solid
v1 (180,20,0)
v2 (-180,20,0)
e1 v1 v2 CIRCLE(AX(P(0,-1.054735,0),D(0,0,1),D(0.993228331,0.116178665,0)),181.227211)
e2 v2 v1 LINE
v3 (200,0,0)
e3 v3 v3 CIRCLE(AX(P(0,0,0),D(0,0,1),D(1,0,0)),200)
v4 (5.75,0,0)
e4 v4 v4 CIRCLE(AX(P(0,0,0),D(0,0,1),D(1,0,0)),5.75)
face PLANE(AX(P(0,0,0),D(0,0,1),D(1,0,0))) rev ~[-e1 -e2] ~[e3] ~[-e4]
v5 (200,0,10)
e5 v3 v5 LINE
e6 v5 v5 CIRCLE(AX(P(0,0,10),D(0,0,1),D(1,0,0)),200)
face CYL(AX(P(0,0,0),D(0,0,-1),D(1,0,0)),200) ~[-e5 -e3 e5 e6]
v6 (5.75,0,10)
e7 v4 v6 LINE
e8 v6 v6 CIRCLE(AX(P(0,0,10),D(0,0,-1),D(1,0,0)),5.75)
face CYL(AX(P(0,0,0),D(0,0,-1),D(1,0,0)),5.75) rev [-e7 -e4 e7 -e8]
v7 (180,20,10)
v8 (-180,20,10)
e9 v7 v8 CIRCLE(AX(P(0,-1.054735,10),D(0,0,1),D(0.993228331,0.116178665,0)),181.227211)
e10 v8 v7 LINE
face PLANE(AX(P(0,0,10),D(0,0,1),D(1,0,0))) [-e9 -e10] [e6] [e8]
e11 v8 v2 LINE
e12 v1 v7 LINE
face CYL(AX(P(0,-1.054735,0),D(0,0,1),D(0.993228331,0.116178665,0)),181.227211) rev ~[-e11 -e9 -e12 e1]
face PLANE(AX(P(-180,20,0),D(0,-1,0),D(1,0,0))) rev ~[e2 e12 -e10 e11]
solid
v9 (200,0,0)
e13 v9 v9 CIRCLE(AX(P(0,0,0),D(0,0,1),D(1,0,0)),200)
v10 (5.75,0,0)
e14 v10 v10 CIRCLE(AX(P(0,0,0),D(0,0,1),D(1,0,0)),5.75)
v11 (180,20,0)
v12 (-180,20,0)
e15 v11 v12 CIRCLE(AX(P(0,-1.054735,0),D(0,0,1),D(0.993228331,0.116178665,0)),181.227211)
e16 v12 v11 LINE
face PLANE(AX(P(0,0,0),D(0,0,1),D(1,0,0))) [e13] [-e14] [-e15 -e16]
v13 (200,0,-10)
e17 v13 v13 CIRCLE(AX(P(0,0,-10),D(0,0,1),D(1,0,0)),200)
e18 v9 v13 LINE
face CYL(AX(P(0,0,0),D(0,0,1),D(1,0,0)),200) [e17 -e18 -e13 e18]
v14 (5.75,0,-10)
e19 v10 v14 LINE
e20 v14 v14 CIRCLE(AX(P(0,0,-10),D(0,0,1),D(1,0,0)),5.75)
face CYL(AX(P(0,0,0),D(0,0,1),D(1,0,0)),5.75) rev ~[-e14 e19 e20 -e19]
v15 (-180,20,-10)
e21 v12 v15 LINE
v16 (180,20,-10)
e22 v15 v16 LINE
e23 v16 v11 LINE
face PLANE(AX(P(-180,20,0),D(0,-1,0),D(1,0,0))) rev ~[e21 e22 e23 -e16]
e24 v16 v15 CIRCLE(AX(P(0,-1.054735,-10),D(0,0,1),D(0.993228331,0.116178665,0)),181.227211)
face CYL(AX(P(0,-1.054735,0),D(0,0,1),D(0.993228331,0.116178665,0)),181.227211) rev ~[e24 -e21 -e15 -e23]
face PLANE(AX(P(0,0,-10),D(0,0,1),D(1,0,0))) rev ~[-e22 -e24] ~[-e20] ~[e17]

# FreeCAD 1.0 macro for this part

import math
import FreeCAD as App
import Part
import Sketcher
from FreeCAD import Vector
Q = App.Units.Quantity

doc = App.newDocument("Part")
body = doc.addObject("PartDesign::Body", "Body")

# Sketch on XY plane
sketch1 = body.newObject("Sketcher::SketchObject", "Sketch")
sketch1.AttachmentSupport = (doc.getObject("XY_Plane"), [""])
sketch1.MapMode = "FlatFace"
sketch1.addGeometry(Part.Circle(Vector(0, 0, 0), Vector(0, 0, 1), 200), False)
sketch1.addConstraint(Sketcher.Constraint("Coincident", 0, 3, -1, 1))
sketch1.addConstraint(Sketcher.Constraint("Diameter", 0, Q("400 mm")))
pad1 = body.newObject("PartDesign::Pad", "Pad")
pad1.Profile = sketch1
pad1.Length = 10
body2 = doc.addObject("PartDesign::Body", "Body001")

# Sketch on XY plane
sketch2 = body2.newObject("Sketcher::SketchObject", "Sketch001")
sketch2.AttachmentSupport = (doc.getObject("XY_Plane001"), [""])
sketch2.MapMode = "FlatFace"
sketch2.addGeometry(Part.Circle(Vector(0, 0, 0), Vector(0, 0, 1), 200), False)
sketch2.addConstraint(Sketcher.Constraint("Coincident", 0, 3, -1, 1))
sketch2.addConstraint(Sketcher.Constraint("Diameter", 0, Q("400 mm")))
pad2 = body2.newObject("PartDesign::Pad", "Pad001")
pad2.Profile = sketch2
pad2.Length = 10
pad2.Reversed = True
body3 = doc.addObject("PartDesign::Body", "Body002")

# Sketch on XY plane
sketch3 = body3.newObject("Sketcher::SketchObject", "Sketch002")
sketch3.AttachmentSupport = (doc.getObject("XY_Plane002"), [""])
sketch3.MapMode = "FlatFace"
sketch3.addGeometry(Part.Circle(Vector(0, 0, 0), Vector(0, 0, 1), 6), False)
sketch3.addConstraint(Sketcher.Constraint("Coincident", 0, 3, -1, 1))
sketch3.addConstraint(Sketcher.Constraint("Diameter", 0, Q("11.5 mm")))
pad3 = body3.newObject("PartDesign::Pad", "Pad002")
pad3.Profile = sketch3
pad3.Type = "TwoLengths"
pad3.Length = 10
pad3.Length2 = 20
pad3.Reversed = True
doc.recompute()

body4 = doc.addObject("PartDesign::Body", "Body003")
body4.BaseFeature = body3
boolean = body.newObject("PartDesign::Boolean", "Boolean")
boolean.Type = "Cut"
boolean.addObjects([body4])
doc.recompute()

boolean2 = body2.newObject("PartDesign::Boolean", "Boolean001")
boolean2.Type = "Cut"
boolean2.addObjects([body3])
body5 = doc.addObject("PartDesign::Body", "Body004")

# Sketch on XY plane
sketch4 = body5.newObject("Sketcher::SketchObject", "Sketch003")
sketch4.AttachmentSupport = (doc.getObject("XY_Plane004"), [""])
sketch4.MapMode = "FlatFace"
sketch4.addGeometry(Part.LineSegment(Vector(-180, 20, 0), Vector(180, 20, 0)), False)
sketch4.addGeometry(Part.ArcOfCircle(Part.Circle(Vector(0, -1, 0), Vector(0, 0, 1), 181), math.radians(7), math.radians(173)), False)
sketch4.addConstraint(Sketcher.Constraint("Coincident", 0, 1, 1, 2))
sketch4.addConstraint(Sketcher.Constraint("Coincident", 1, 1, 0, 2))
sketch4.addConstraint(Sketcher.Constraint("Horizontal", 0))
sketch4.addConstraint(Sketcher.Constraint("PointOnObject", 1, 3, -2))
sketch4.addConstraint(Sketcher.Constraint("DistanceX", 0, 1, 0, 2, Q("360 mm")))
sketch4.addConstraint(Sketcher.Constraint("DistanceY", -1, 1, 0, 1, Q("20 mm")))
sketch4.addConstraint(Sketcher.Constraint("Radius", 1, Q("181.227211 mm")))
pad4 = body5.newObject("PartDesign::Pad", "Pad003")
pad4.Profile = sketch4
pad4.Type = "TwoLengths"
pad4.Length = 10
pad4.Length2 = 10
doc.recompute()

body6 = doc.addObject("PartDesign::Body", "Body005")
body6.BaseFeature = body5
boolean3 = body.newObject("PartDesign::Boolean", "Boolean002")
boolean3.Type = "Cut"
boolean3.addObjects([body6])
doc.recompute()

boolean4 = body2.newObject("PartDesign::Boolean", "Boolean003")
boolean4.Type = "Cut"
boolean4.addObjects([body5])

doc.recompute()
